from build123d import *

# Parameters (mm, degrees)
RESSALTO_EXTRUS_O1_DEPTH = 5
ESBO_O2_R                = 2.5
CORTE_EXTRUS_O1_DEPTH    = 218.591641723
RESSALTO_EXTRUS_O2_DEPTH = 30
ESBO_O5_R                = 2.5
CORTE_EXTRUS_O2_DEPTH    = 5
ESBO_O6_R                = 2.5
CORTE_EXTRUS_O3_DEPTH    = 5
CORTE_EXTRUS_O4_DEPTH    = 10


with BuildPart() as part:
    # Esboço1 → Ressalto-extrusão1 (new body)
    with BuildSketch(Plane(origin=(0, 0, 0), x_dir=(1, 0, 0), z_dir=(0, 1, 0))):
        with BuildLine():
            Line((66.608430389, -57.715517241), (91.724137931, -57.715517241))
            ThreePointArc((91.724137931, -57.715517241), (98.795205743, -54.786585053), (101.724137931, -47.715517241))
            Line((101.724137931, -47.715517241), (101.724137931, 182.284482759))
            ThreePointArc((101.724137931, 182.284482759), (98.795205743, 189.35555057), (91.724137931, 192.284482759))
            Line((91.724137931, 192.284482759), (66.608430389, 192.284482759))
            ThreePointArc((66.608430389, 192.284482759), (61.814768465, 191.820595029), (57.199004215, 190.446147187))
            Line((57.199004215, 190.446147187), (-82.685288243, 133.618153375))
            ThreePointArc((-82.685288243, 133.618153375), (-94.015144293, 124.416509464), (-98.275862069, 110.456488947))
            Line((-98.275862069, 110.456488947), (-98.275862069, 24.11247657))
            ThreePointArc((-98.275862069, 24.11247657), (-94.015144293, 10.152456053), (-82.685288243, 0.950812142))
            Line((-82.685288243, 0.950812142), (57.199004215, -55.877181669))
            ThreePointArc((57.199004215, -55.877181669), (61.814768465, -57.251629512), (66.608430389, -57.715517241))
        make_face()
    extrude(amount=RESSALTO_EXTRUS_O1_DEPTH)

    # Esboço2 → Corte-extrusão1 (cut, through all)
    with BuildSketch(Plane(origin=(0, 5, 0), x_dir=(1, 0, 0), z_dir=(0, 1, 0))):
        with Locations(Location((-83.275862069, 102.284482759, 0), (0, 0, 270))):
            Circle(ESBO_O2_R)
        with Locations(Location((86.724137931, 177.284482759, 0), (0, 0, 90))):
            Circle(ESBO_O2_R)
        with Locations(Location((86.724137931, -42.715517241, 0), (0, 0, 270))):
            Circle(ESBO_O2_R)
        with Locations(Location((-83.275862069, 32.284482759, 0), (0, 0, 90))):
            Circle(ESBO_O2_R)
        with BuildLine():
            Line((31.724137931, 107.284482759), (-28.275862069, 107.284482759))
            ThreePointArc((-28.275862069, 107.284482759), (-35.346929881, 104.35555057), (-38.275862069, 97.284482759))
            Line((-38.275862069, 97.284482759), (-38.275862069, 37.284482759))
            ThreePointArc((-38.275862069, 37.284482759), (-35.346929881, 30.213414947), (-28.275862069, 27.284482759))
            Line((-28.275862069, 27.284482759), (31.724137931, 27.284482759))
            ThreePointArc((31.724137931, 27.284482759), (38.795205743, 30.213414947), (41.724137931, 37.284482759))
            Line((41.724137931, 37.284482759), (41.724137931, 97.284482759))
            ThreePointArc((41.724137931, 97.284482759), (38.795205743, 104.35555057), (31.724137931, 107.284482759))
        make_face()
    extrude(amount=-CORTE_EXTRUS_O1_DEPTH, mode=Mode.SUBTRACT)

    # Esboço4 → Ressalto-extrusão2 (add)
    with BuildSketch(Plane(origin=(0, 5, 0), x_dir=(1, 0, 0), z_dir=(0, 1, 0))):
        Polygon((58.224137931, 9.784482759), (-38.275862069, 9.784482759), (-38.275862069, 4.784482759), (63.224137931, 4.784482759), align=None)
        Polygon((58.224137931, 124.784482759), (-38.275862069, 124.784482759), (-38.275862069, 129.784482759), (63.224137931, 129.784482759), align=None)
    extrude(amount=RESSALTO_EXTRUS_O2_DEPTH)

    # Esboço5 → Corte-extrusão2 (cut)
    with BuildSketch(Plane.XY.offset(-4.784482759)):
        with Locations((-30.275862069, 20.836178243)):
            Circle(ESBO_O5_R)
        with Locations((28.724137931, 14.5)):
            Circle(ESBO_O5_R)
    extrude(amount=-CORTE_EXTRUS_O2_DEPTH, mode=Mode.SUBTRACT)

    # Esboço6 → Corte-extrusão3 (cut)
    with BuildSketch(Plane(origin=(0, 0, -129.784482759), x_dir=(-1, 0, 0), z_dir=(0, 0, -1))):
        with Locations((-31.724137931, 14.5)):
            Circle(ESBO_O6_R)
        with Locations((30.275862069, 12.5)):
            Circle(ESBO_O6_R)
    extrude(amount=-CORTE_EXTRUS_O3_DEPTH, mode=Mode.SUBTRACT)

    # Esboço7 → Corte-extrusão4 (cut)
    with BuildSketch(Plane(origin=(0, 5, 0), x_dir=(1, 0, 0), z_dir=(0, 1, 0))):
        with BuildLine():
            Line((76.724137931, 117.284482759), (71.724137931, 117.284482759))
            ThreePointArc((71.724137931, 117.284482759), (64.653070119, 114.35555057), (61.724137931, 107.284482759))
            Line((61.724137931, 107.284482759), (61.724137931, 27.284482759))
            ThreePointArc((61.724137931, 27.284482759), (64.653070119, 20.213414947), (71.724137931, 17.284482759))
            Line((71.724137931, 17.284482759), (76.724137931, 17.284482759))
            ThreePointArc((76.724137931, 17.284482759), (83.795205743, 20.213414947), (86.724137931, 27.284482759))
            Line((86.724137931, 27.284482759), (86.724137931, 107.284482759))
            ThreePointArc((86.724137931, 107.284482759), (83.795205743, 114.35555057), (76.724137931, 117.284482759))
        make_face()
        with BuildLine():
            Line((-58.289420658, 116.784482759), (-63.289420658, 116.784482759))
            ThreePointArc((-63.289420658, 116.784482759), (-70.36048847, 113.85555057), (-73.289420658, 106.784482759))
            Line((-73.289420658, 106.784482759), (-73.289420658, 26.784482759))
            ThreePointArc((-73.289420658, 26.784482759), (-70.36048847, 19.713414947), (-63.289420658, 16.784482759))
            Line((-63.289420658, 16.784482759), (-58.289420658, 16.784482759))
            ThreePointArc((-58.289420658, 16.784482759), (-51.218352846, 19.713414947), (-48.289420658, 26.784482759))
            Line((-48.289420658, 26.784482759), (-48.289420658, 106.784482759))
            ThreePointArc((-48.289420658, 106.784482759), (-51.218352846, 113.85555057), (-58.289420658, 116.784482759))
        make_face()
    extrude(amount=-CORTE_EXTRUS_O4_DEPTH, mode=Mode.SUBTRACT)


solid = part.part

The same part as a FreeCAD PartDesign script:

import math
import FreeCAD as App
import Part
import Sketcher
from FreeCAD import Vector
Q = App.Units.Quantity

doc = App.newDocument("Part")
body = doc.addObject("PartDesign::Body", "Body")

# Sketch on XZ plane
sketch1 = body.newObject("Sketcher::SketchObject", "Sketch")
sketch1.AttachmentSupport = (doc.getObject("XZ_Plane"), [""])
sketch1.MapMode = "FlatFace"
sketch1.addGeometry([
    Part.LineSegment(Vector(66.60843, 57.715517, 0), Vector(91.724138, 57.715517, 0)),  # 0
    Part.ArcOfCircle(Part.Circle(Vector(91.724138, 47.715517, 0), Vector(0, 0, 1), 10), math.radians(0), math.radians(90)),  # 1
    Part.LineSegment(Vector(101.724138, 47.715517, 0), Vector(101.724138, -182.284483, 0)),  # 2
    Part.ArcOfCircle(Part.Circle(Vector(91.724138, -182.284483, 0), Vector(0, 0, 1), 10), math.radians(-90), math.radians(0)),  # 3
    Part.LineSegment(Vector(91.724138, -192.284483, 0), Vector(66.60843, -192.284483, 0)),  # 4
    Part.ArcOfCircle(Part.Circle(Vector(66.60843, -167.284483, 0), Vector(0, 0, 1), 25), math.radians(-112.109448), math.radians(-90)),  # 5
    Part.LineSegment(Vector(57.199004, -190.446147, 0), Vector(-82.685288, -133.618153, 0)),  # 6
    Part.ArcOfCircle(Part.Circle(Vector(-73.275862, -110.456489, 0), Vector(0, 0, 1), 25), math.radians(180), math.radians(247.890552)),  # 7
    Part.LineSegment(Vector(-98.275862, -110.456489, 0), Vector(-98.275862, -24.112477, 0)),  # 8
    Part.ArcOfCircle(Part.Circle(Vector(-73.275862, -24.112477, 0), Vector(0, 0, 1), 25), math.radians(112.109448), math.radians(180)),  # 9
    Part.LineSegment(Vector(-82.685288, -0.950812, 0), Vector(57.199004, 55.877182, 0)),  # 10
    Part.ArcOfCircle(Part.Circle(Vector(66.60843, 32.715517, 0), Vector(0, 0, 1), 25), math.radians(90), math.radians(112.109448)),  # 11
], False)
sketch1.addConstraint([
    Sketcher.Constraint("Tangent", 0, 2, 1, 2),
    Sketcher.Constraint("Tangent", 1, 1, 2, 1),
    Sketcher.Constraint("Tangent", 2, 2, 3, 2),
    Sketcher.Constraint("Tangent", 3, 1, 4, 1),
    Sketcher.Constraint("Tangent", 4, 2, 5, 2),
    Sketcher.Constraint("Tangent", 5, 1, 6, 1),
    Sketcher.Constraint("Tangent", 6, 2, 7, 2),
    Sketcher.Constraint("Tangent", 7, 1, 8, 1),
    Sketcher.Constraint("Tangent", 8, 2, 9, 2),
    Sketcher.Constraint("Tangent", 9, 1, 10, 1),
    Sketcher.Constraint("Tangent", 10, 2, 11, 2),
    Sketcher.Constraint("Tangent", 11, 1, 0, 1),
    Sketcher.Constraint("Horizontal", 0),
    Sketcher.Constraint("Vertical", 2),
    Sketcher.Constraint("Horizontal", 4),
    Sketcher.Constraint("Vertical", 8),
    Sketcher.Constraint("Equal", 1, 3),
    Sketcher.Constraint("Equal", 5, 7),
    Sketcher.Constraint("Equal", 7, 9),
    Sketcher.Constraint("Equal", 9, 11),
    Sketcher.Constraint("Vertical", 5, 3, 11, 3),
    Sketcher.Constraint("Vertical", 6, 2, 9, 1),
    Sketcher.Constraint("Radius", 1, Q("10 mm")),
    Sketcher.Constraint("Radius", 5, Q("25 mm")),
    Sketcher.Constraint("DistanceY", 2, 2, 2, 1, Q("230 mm")),
    Sketcher.Constraint("DistanceX", 7, 3, 3, 3, Q("165 mm")),
    Sketcher.Constraint("DistanceX", 0, 1, 0, 2, Q("25.115708 mm")),
    Sketcher.Constraint("DistanceY", 8, 1, 8, 2, Q("86.344012 mm")),
    Sketcher.Constraint("DistanceX", -1, 1, 5, 3, Q("66.60843 mm")),
    Sketcher.Constraint("DistanceY", 7, 3, -1, 1, Q("110.456489 mm")),
])
pad1 = body.newObject("PartDesign::Pad", "Pad")
pad1.Profile = sketch1
pad1.Length = 5
pad1.Reversed = True

# Sketch on XZ plane
sketch2 = body.newObject("Sketcher::SketchObject", "Sketch001")
sketch2.AttachmentSupport = (doc.getObject("XZ_Plane"), [""])
sketch2.MapMode = "FlatFace"
sketch2.AttachmentOffset = App.Placement(Vector(0, 0, -5), App.Rotation())
sketch2.addGeometry([
    Part.Circle(Vector(-83.275862, -102.284483, 0), Vector(0, 0, 1), 2.5),  # 0
    Part.Circle(Vector(86.724138, -177.284483, 0), Vector(0, 0, 1), 2.5),  # 1
    Part.Circle(Vector(86.724138, 42.715517, 0), Vector(0, 0, 1), 2.5),  # 2
    Part.Circle(Vector(-83.275862, -32.284483, 0), Vector(0, 0, 1), 2.5),  # 3
    Part.LineSegment(Vector(31.724138, -107.284483, 0), Vector(-28.275862, -107.284483, 0)),  # 4
    Part.ArcOfCircle(Part.Circle(Vector(-28.275862, -97.284483, 0), Vector(0, 0, 1), 10), math.radians(-180), math.radians(-90)),  # 5
    Part.LineSegment(Vector(-38.275862, -97.284483, 0), Vector(-38.275862, -37.284483, 0)),  # 6
    Part.ArcOfCircle(Part.Circle(Vector(-28.275862, -37.284483, 0), Vector(0, 0, 1), 10), math.radians(90), math.radians(180)),  # 7
    Part.LineSegment(Vector(-28.275862, -27.284483, 0), Vector(31.724138, -27.284483, 0)),  # 8
    Part.ArcOfCircle(Part.Circle(Vector(31.724138, -37.284483, 0), Vector(0, 0, 1), 10), math.radians(0), math.radians(90)),  # 9
    Part.LineSegment(Vector(41.724138, -37.284483, 0), Vector(41.724138, -97.284483, 0)),  # 10
    Part.ArcOfCircle(Part.Circle(Vector(31.724138, -97.284483, 0), Vector(0, 0, 1), 10), math.radians(-90), math.radians(0)),  # 11
], False)
sketch2.addConstraint([
    Sketcher.Constraint("Tangent", 4, 2, 5, 2),
    Sketcher.Constraint("Tangent", 5, 1, 6, 1),
    Sketcher.Constraint("Tangent", 6, 2, 7, 2),
    Sketcher.Constraint("Tangent", 7, 1, 8, 1),
    Sketcher.Constraint("Tangent", 8, 2, 9, 2),
    Sketcher.Constraint("Tangent", 9, 1, 10, 1),
    Sketcher.Constraint("Tangent", 10, 2, 11, 2),
    Sketcher.Constraint("Tangent", 11, 1, 4, 1),
    Sketcher.Constraint("Horizontal", 4),
    Sketcher.Constraint("Vertical", 6),
    Sketcher.Constraint("Horizontal", 8),
    Sketcher.Constraint("Vertical", 10),
    Sketcher.Constraint("Equal", 0, 1),
    Sketcher.Constraint("Equal", 1, 2),
    Sketcher.Constraint("Equal", 2, 3),
    Sketcher.Constraint("Equal", 5, 7),
    Sketcher.Constraint("Equal", 7, 9),
    Sketcher.Constraint("Equal", 9, 11),
    Sketcher.Constraint("Vertical", 1, 3, 2, 3),
    Sketcher.Constraint("Vertical", 0, 3, 3, 3),
    Sketcher.Constraint("Equal", 8, 6),
    Sketcher.Constraint("Diameter", 0, Q("5 mm")),
    Sketcher.Constraint("Radius", 5, Q("10 mm")),
    Sketcher.Constraint("DistanceX", 4, 2, 4, 1, Q("60 mm")),
    Sketcher.Constraint("DistanceX", 0, 3, 1, 3, Q("170 mm")),
    Sketcher.Constraint("DistanceY", 1, 3, 0, 3, Q("75 mm")),
    Sketcher.Constraint("DistanceY", 1, 3, 2, 3, Q("220 mm")),
    Sketcher.Constraint("DistanceY", 0, 3, 3, 3, Q("70 mm")),
    Sketcher.Constraint("DistanceX", 0, 3, 5, 3, Q("55 mm")),
    Sketcher.Constraint("DistanceY", 0, 3, 5, 3, Q("5 mm")),
    Sketcher.Constraint("DistanceX", 0, 3, -1, 1, Q("83.275862 mm")),
    Sketcher.Constraint("DistanceY", 0, 3, -1, 1, Q("102.284483 mm")),
])
pocket1 = body.newObject("PartDesign::Pocket", "Pocket")
pocket1.Profile = sketch2
pocket1.Type = "ThroughAll"
pocket1.Reversed = True

# Sketch on XZ plane
sketch3 = body.newObject("Sketcher::SketchObject", "Sketch002")
sketch3.AttachmentSupport = (doc.getObject("XZ_Plane"), [""])
sketch3.MapMode = "FlatFace"
sketch3.AttachmentOffset = App.Placement(Vector(0, 0, -5), App.Rotation())
sketch3.addGeometry([
    Part.LineSegment(Vector(58.224138, -9.784483, 0), Vector(-38.275862, -9.784483, 0)),  # 0
    Part.LineSegment(Vector(-38.275862, -9.784483, 0), Vector(-38.275862, -4.784483, 0)),  # 1
    Part.LineSegment(Vector(-38.275862, -4.784483, 0), Vector(63.224138, -4.784483, 0)),  # 2
    Part.LineSegment(Vector(63.224138, -4.784483, 0), Vector(58.224138, -9.784483, 0)),  # 3
    Part.LineSegment(Vector(-38.275862, -124.784483, 0), Vector(58.224138, -124.784483, 0)),  # 4
    Part.LineSegment(Vector(58.224138, -124.784483, 0), Vector(63.224138, -129.784483, 0)),  # 5
    Part.LineSegment(Vector(63.224138, -129.784483, 0), Vector(-38.275862, -129.784483, 0)),  # 6
    Part.LineSegment(Vector(-38.275862, -129.784483, 0), Vector(-38.275862, -124.784483, 0)),  # 7
], False)
sketch3.addConstraint([
    Sketcher.Constraint("Coincident", 0, 2, 1, 1),
    Sketcher.Constraint("Coincident", 1, 2, 2, 1),
    Sketcher.Constraint("Coincident", 2, 2, 3, 1),
    Sketcher.Constraint("Coincident", 3, 2, 0, 1),
    Sketcher.Constraint("Coincident", 4, 2, 5, 1),
    Sketcher.Constraint("Coincident", 5, 2, 6, 1),
    Sketcher.Constraint("Coincident", 6, 2, 7, 1),
    Sketcher.Constraint("Coincident", 7, 2, 4, 1),
    Sketcher.Constraint("Horizontal", 0),
    Sketcher.Constraint("Vertical", 1),
    Sketcher.Constraint("Horizontal", 2),
    Sketcher.Constraint("Horizontal", 4),
    Sketcher.Constraint("Horizontal", 6),
    Sketcher.Constraint("Vertical", 7),
    Sketcher.Constraint("Perpendicular", 3, 5),
    Sketcher.Constraint("Vertical", 3, 2, 4, 2),
    Sketcher.Constraint("Vertical", 2, 2, 5, 2),
    Sketcher.Constraint("Vertical", 1, 2, 6, 2),
    Sketcher.Constraint("Equal", 1, 7),
    Sketcher.Constraint("DistanceY", 1, 1, 1, 2, Q("5 mm")),
    Sketcher.Constraint("DistanceX", 0, 2, 0, 1, Q("96.5 mm")),
    Sketcher.Constraint("DistanceY", 4, 2, 3, 2, Q("115 mm")),
    Sketcher.Constraint("DistanceX", 0, 2, -1, 1, Q("38.275862 mm")),
    Sketcher.Constraint("DistanceY", 0, 2, -1, 1, Q("9.784483 mm")),
])
pad2 = body.newObject("PartDesign::Pad", "Pad001")
pad2.Profile = sketch3
pad2.Length = 30
pad2.Reversed = True

# Sketch on XY plane
sketch4 = body.newObject("Sketcher::SketchObject", "Sketch003")
sketch4.AttachmentSupport = (doc.getObject("XY_Plane"), [""])
sketch4.MapMode = "FlatFace"
sketch4.AttachmentOffset = App.Placement(Vector(0, 0, -4.784483), App.Rotation())
sketch4.addGeometry([
    Part.Circle(Vector(-30.275862, 20.836178, 0), Vector(0, 0, 1), 2.5),
    Part.Circle(Vector(28.724138, 14.5, 0), Vector(0, 0, 1), 2.5),
], False)
sketch4.addConstraint([
    Sketcher.Constraint("Equal", 0, 1),
    Sketcher.Constraint("Diameter", 0, Q("5 mm")),
    Sketcher.Constraint("DistanceX", 0, 3, 1, 3, Q("59 mm")),
    Sketcher.Constraint("DistanceY", -1, 1, 1, 3, Q("14.5 mm")),
    Sketcher.Constraint("DistanceY", -1, 1, 0, 3, Q("20.836178 mm")),
    Sketcher.Constraint("DistanceX", 0, 3, -1, 1, Q("30.275862 mm")),
])
pocket2 = body.newObject("PartDesign::Pocket", "Pocket001")
pocket2.Profile = sketch4
pocket2.Length = 5

# Sketch on XY plane
sketch5 = body.newObject("Sketcher::SketchObject", "Sketch004")
sketch5.AttachmentSupport = (doc.getObject("XY_Plane"), [""])
sketch5.MapMode = "FlatFace"
sketch5.AttachmentOffset = App.Placement(Vector(0, 0, -129.784483), App.Rotation())
sketch5.addGeometry([
    Part.Circle(Vector(31.724138, 14.5, 0), Vector(0, 0, 1), 2.5),
    Part.Circle(Vector(-30.275862, 12.5, 0), Vector(0, 0, 1), 2.5),
], False)
sketch5.addConstraint([
    Sketcher.Constraint("Equal", 0, 1),
    Sketcher.Constraint("Diameter", 0, Q("5 mm")),
    Sketcher.Constraint("DistanceX", 1, 3, 0, 3, Q("62 mm")),
    Sketcher.Constraint("DistanceY", 1, 3, 0, 3, Q("2 mm")),
    Sketcher.Constraint("DistanceY", -1, 1, 0, 3, Q("14.5 mm")),
    Sketcher.Constraint("DistanceX", -1, 1, 0, 3, Q("31.724138 mm")),
])
pocket3 = body.newObject("PartDesign::Pocket", "Pocket002")
pocket3.Profile = sketch5
pocket3.Length = 5
pocket3.Reversed = True

# Sketch on XZ plane
sketch6 = body.newObject("Sketcher::SketchObject", "Sketch005")
sketch6.AttachmentSupport = (doc.getObject("XZ_Plane"), [""])
sketch6.MapMode = "FlatFace"
sketch6.AttachmentOffset = App.Placement(Vector(0, 0, -5), App.Rotation())
sketch6.addGeometry([
    Part.LineSegment(Vector(76.724138, -117.284483, 0), Vector(71.724138, -117.284483, 0)),  # 0
    Part.ArcOfCircle(Part.Circle(Vector(71.724138, -107.284483, 0), Vector(0, 0, 1), 10), math.radians(-180), math.radians(-90)),  # 1
    Part.LineSegment(Vector(61.724138, -107.284483, 0), Vector(61.724138, -27.284483, 0)),  # 2
    Part.ArcOfCircle(Part.Circle(Vector(71.724138, -27.284483, 0), Vector(0, 0, 1), 10), math.radians(90), math.radians(180)),  # 3
    Part.LineSegment(Vector(71.724138, -17.284483, 0), Vector(76.724138, -17.284483, 0)),  # 4
    Part.ArcOfCircle(Part.Circle(Vector(76.724138, -27.284483, 0), Vector(0, 0, 1), 10), math.radians(0), math.radians(90)),  # 5
    Part.LineSegment(Vector(86.724138, -27.284483, 0), Vector(86.724138, -107.284483, 0)),  # 6
    Part.ArcOfCircle(Part.Circle(Vector(76.724138, -107.284483, 0), Vector(0, 0, 1), 10), math.radians(-90), math.radians(0)),  # 7
    Part.LineSegment(Vector(-58.289421, -116.784483, 0), Vector(-63.289421, -116.784483, 0)),  # 8
    Part.ArcOfCircle(Part.Circle(Vector(-63.289421, -106.784483, 0), Vector(0, 0, 1), 10), math.radians(-180), math.radians(-90)),  # 9
    Part.LineSegment(Vector(-73.289421, -106.784483, 0), Vector(-73.289421, -26.784483, 0)),  # 10
    Part.ArcOfCircle(Part.Circle(Vector(-63.289421, -26.784483, 0), Vector(0, 0, 1), 10), math.radians(90), math.radians(180)),  # 11
    Part.LineSegment(Vector(-63.289421, -16.784483, 0), Vector(-58.289421, -16.784483, 0)),  # 12
    Part.ArcOfCircle(Part.Circle(Vector(-58.289421, -26.784483, 0), Vector(0, 0, 1), 10), math.radians(0), math.radians(90)),  # 13
    Part.LineSegment(Vector(-48.289421, -26.784483, 0), Vector(-48.289421, -106.784483, 0)),  # 14
    Part.ArcOfCircle(Part.Circle(Vector(-58.289421, -106.784483, 0), Vector(0, 0, 1), 10), math.radians(-90), math.radians(0)),  # 15
], False)
sketch6.addConstraint([
    Sketcher.Constraint("Tangent", 0, 2, 1, 2),
    Sketcher.Constraint("Tangent", 1, 1, 2, 1),
    Sketcher.Constraint("Tangent", 2, 2, 3, 2),
    Sketcher.Constraint("Tangent", 3, 1, 4, 1),
    Sketcher.Constraint("Tangent", 4, 2, 5, 2),
    Sketcher.Constraint("Tangent", 5, 1, 6, 1),
    Sketcher.Constraint("Tangent", 6, 2, 7, 2),
    Sketcher.Constraint("Tangent", 7, 1, 0, 1),
    Sketcher.Constraint("Tangent", 8, 2, 9, 2),
    Sketcher.Constraint("Tangent", 9, 1, 10, 1),
    Sketcher.Constraint("Tangent", 10, 2, 11, 2),
    Sketcher.Constraint("Tangent", 11, 1, 12, 1),
    Sketcher.Constraint("Tangent", 12, 2, 13, 2),
    Sketcher.Constraint("Tangent", 13, 1, 14, 1),
    Sketcher.Constraint("Tangent", 14, 2, 15, 2),
    Sketcher.Constraint("Tangent", 15, 1, 8, 1),
    Sketcher.Constraint("Horizontal", 0),
    Sketcher.Constraint("Vertical", 2),
    Sketcher.Constraint("Horizontal", 4),
    Sketcher.Constraint("Vertical", 6),
    Sketcher.Constraint("Horizontal", 8),
    Sketcher.Constraint("Vertical", 10),
    Sketcher.Constraint("Horizontal", 12),
    Sketcher.Constraint("Vertical", 14),
    Sketcher.Constraint("Equal", 1, 3),
    Sketcher.Constraint("Equal", 3, 5),
    Sketcher.Constraint("Equal", 5, 7),
    Sketcher.Constraint("Equal", 7, 9),
    Sketcher.Constraint("Equal", 9, 11),
    Sketcher.Constraint("Equal", 11, 13),
    Sketcher.Constraint("Equal", 13, 15),
    Sketcher.Constraint("Equal", 4, 8),
    Sketcher.Constraint("Equal", 6, 10),
    Sketcher.Constraint("Radius", 1, Q("10 mm")),
    Sketcher.Constraint("DistanceX", 0, 2, 0, 1, Q("5 mm")),
    Sketcher.Constraint("DistanceY", 2, 1, 2, 2, Q("80 mm")),
    Sketcher.Constraint("DistanceY", 1, 3, 9, 3, Q("0.5 mm")),
    Sketcher.Constraint("DistanceX", 9, 3, -1, 1, Q("63.289421 mm")),
    Sketcher.Constraint("DistanceX", 9, 3, 1, 3, Q("135.013559 mm")),
    Sketcher.Constraint("DistanceY", 1, 3, -1, 1, Q("107.284483 mm")),
])
pocket4 = body.newObject("PartDesign::Pocket", "Pocket003")
pocket4.Profile = sketch6
pocket4.Length = 10
pocket4.Reversed = True

doc.recompute()
